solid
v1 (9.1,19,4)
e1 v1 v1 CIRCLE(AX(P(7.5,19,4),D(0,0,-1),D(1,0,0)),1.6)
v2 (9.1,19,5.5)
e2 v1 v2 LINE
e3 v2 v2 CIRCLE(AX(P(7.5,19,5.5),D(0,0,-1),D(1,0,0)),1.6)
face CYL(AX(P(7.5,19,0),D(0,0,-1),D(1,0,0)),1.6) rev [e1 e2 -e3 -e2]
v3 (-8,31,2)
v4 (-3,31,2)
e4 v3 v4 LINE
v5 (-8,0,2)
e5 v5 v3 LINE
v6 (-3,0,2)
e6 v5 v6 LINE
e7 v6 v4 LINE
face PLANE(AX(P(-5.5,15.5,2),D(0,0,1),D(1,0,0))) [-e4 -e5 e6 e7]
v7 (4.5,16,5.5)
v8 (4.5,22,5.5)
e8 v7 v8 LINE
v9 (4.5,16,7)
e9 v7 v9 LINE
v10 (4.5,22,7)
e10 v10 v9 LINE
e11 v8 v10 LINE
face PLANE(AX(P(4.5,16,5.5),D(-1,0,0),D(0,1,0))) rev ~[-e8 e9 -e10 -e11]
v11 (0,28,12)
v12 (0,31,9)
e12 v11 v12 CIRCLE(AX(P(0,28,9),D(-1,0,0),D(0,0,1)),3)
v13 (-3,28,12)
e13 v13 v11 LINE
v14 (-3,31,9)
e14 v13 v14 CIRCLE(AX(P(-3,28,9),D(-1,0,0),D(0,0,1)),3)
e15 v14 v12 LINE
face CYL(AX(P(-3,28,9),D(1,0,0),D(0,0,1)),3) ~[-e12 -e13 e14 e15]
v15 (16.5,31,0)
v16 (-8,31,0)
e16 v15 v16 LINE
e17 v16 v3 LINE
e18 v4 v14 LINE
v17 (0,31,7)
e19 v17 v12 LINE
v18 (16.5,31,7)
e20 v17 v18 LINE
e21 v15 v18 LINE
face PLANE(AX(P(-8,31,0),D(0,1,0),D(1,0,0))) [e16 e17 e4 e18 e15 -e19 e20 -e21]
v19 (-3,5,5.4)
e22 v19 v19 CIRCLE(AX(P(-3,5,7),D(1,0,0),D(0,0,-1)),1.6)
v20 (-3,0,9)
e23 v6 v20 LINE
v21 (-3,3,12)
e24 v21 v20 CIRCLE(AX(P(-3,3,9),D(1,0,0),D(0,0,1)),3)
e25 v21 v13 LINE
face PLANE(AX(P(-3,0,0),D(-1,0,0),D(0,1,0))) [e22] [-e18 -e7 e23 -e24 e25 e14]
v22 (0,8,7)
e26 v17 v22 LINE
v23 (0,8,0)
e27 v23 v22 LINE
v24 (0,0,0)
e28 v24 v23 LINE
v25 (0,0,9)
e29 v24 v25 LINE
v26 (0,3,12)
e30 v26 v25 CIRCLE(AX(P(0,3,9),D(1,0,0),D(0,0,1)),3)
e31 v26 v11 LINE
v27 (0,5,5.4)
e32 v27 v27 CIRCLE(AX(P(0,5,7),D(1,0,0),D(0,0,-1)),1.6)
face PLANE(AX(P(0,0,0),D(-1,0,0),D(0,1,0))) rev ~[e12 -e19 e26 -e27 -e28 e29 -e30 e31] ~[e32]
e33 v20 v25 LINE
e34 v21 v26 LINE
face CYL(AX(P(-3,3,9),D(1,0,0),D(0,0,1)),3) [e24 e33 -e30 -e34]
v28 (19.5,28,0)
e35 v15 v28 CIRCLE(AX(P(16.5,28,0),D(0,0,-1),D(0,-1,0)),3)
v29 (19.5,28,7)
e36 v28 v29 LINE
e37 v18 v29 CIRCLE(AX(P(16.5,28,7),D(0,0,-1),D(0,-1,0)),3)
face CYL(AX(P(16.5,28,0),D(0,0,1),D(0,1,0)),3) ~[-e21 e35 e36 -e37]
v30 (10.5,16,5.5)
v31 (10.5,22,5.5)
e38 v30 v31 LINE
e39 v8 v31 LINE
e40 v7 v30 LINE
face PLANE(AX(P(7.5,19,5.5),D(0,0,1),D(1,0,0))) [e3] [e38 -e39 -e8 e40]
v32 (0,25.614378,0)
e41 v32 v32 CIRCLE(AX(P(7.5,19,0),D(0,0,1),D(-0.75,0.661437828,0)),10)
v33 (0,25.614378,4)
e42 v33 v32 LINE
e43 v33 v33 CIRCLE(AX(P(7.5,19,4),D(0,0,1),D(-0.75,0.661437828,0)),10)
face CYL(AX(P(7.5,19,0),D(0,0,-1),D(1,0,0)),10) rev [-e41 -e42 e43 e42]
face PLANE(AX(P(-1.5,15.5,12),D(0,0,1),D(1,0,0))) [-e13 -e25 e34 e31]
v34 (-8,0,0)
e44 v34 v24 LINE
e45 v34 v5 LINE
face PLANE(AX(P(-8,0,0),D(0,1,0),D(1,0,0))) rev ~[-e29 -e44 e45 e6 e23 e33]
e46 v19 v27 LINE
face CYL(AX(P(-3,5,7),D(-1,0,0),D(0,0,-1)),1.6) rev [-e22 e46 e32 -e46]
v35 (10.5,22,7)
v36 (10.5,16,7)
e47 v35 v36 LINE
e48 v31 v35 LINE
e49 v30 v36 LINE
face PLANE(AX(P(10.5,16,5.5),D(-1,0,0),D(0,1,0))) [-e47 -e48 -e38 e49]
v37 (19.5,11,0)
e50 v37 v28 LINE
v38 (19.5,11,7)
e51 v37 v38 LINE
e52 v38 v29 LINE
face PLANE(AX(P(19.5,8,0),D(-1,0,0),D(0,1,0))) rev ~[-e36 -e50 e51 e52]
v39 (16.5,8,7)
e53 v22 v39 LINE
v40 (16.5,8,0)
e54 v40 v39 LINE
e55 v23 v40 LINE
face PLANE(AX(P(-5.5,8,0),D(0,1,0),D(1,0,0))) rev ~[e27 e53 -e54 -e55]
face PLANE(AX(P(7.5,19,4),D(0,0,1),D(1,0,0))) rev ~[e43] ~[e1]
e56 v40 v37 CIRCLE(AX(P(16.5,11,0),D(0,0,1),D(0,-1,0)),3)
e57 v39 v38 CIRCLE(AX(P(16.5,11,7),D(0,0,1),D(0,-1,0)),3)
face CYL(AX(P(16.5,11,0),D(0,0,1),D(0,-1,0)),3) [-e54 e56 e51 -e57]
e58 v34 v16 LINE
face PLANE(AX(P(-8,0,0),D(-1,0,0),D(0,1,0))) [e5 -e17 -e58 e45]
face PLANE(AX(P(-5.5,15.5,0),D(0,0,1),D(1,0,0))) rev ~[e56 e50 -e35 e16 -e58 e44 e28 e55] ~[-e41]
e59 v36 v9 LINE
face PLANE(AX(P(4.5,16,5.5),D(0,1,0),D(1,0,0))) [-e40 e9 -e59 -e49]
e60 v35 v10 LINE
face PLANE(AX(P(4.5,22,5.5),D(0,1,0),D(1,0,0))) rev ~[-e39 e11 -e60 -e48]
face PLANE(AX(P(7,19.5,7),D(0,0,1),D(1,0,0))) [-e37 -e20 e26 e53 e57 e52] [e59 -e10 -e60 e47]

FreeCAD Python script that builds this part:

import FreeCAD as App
import Part
import Sketcher

V = App.Vector
Q = App.Units.Quantity


def edges_at(feature, points):
    """Names of the edges that pass closest to the given points."""
    edges = feature.Shape.Edges
    near = lambda p: min(range(len(edges)), key=lambda i: edges[i].distToShape(Part.Vertex(*p))[0])
    return sorted({f"Edge{near(p) + 1}" for p in points})


def add_polygon(sketch, points):
    """Adds a closed chain of lines whose ends are joined by coincident constraints."""
    first, n = sketch.GeometryCount, len(points)
    for a, b in zip(points, points[1:] + points[:1]):
        sketch.addGeometry(Part.LineSegment(App.Vector(*a, 0), App.Vector(*b, 0)), False)
    for i in range(n):
        sketch.addConstraint(Sketcher.Constraint("Coincident", first + i, 2, first + (i + 1) % n, 1))

doc = App.newDocument("Part")
body = doc.addObject("PartDesign::Body", "Body")

# Sketch on XY plane
sketch1 = body.newObject("Sketcher::SketchObject", "Sketch")
sketch1.AttachmentSupport = (doc.getObject("XY_Plane"), [""])
sketch1.MapMode = "FlatFace"
sketch1.addGeometry(Part.Circle(V(8, 19, 0), V(0, 0, 1), 10), False)
sketch1.addConstraint(Sketcher.Constraint("Diameter", 0, Q("20 mm")))
sketch1.addConstraint(Sketcher.Constraint("DistanceY", -1, 1, 0, 3, Q("19 mm")))
sketch1.addConstraint(Sketcher.Constraint("DistanceX", -1, 1, 0, 3, Q("7.5 mm")))
pad1 = body.newObject("PartDesign::Pad", "Pad")
pad1.Profile = sketch1
pad1.Length = 4
body2 = doc.addObject("PartDesign::Body", "Body001")

# Sketch on YZ plane
sketch2 = body2.newObject("Sketcher::SketchObject", "Sketch001")
sketch2.AttachmentSupport = (doc.getObject("YZ_Plane001"), [""])
sketch2.MapMode = "FlatFace"
sketch2.AttachmentOffset = App.Placement(V(0, 0, -3), App.Rotation())
sketch2.addGeometry(Part.Circle(V(5, 7, 0), V(0, 0, 1), 1.6), False)
sketch2.addConstraint(Sketcher.Constraint("Diameter", 0, Q("3.2 mm")))
sketch2.addConstraint(Sketcher.Constraint("DistanceX", -1, 1, 0, 3, Q("5 mm")))
sketch2.addConstraint(Sketcher.Constraint("DistanceY", -1, 1, 0, 3, Q("7 mm")))
pad2 = body2.newObject("PartDesign::Pad", "Pad001")
pad2.Profile = sketch2
pad2.Length = 3
body3 = doc.addObject("PartDesign::Body", "Body002")

# Sketch on XY plane
sketch3 = body3.newObject("Sketcher::SketchObject", "Sketch002")
sketch3.AttachmentSupport = (doc.getObject("XY_Plane002"), [""])
sketch3.MapMode = "FlatFace"
add_polygon(sketch3, [(-8, 31), (-8, 0), (-3, 0), (-3, 31)])  # lines 0-3
sketch3.addConstraint(Sketcher.Constraint("Vertical", 0))
sketch3.addConstraint(Sketcher.Constraint("Horizontal", 1))
sketch3.addConstraint(Sketcher.Constraint("Vertical", 2))
sketch3.addConstraint(Sketcher.Constraint("Horizontal", 3))
sketch3.addConstraint(Sketcher.Constraint("PointOnObject", 0, 2, -1))
sketch3.addConstraint(Sketcher.Constraint("DistanceX", 1, 1, 1, 2, Q("5 mm")))
sketch3.addConstraint(Sketcher.Constraint("DistanceY", 0, 2, 0, 1, Q("31 mm")))
sketch3.addConstraint(Sketcher.Constraint("DistanceX", 0, 2, -1, 1, Q("8 mm")))
pad3 = body3.newObject("PartDesign::Pad", "Pad002")
pad3.Profile = sketch3
pad3.Length = 2
body4 = doc.addObject("PartDesign::Body", "Body003")

# Sketch on XY plane
sketch4 = body4.newObject("Sketcher::SketchObject", "Sketch003")
sketch4.AttachmentSupport = (doc.getObject("XY_Plane003"), [""])
sketch4.MapMode = "FlatFace"
add_polygon(sketch4, [(-3, 31), (-3, 0), (0, 0), (0, 31)])  # lines 0-3
sketch4.addConstraint(Sketcher.Constraint("Vertical", 0))
sketch4.addConstraint(Sketcher.Constraint("Horizontal", 1))
sketch4.addConstraint(Sketcher.Constraint("Vertical", 2))
sketch4.addConstraint(Sketcher.Constraint("Horizontal", 3))
sketch4.addConstraint(Sketcher.Constraint("Coincident", 1, 2, -1, 1))
sketch4.addConstraint(Sketcher.Constraint("DistanceX", 1, 1, 1, 2, Q("3 mm")))
sketch4.addConstraint(Sketcher.Constraint("DistanceY", 0, 2, 0, 1, Q("31 mm")))
pad4 = body4.newObject("PartDesign::Pad", "Pad003")
pad4.Profile = sketch4
pad4.Length = 12
doc.recompute()

boolean = body4.newObject("PartDesign::Boolean", "Boolean")
boolean.Type = "Fuse"
boolean.addObjects([body3])
doc.recompute()

boolean2 = body4.newObject("PartDesign::Boolean", "Boolean001")
boolean2.Type = "Cut"
boolean2.addObjects([body2])
body5 = doc.addObject("PartDesign::Body", "Body004")

# Sketch on XY plane
sketch5 = body5.newObject("Sketcher::SketchObject", "Sketch004")
sketch5.AttachmentSupport = (doc.getObject("XY_Plane004"), [""])
sketch5.MapMode = "FlatFace"
sketch5.AttachmentOffset = App.Placement(V(0, 0, 2), App.Rotation())
add_polygon(sketch5, [(-6, 31), (-6, 0), (-3, 0), (-3, 31)])  # lines 0-3
sketch5.addConstraint(Sketcher.Constraint("Vertical", 0))
sketch5.addConstraint(Sketcher.Constraint("Horizontal", 1))
sketch5.addConstraint(Sketcher.Constraint("Vertical", 2))
sketch5.addConstraint(Sketcher.Constraint("Horizontal", 3))
sketch5.addConstraint(Sketcher.Constraint("PointOnObject", 0, 2, -1))
sketch5.addConstraint(Sketcher.Constraint("DistanceX", 1, 1, 1, 2, Q("3 mm")))
sketch5.addConstraint(Sketcher.Constraint("DistanceY", 0, 2, 0, 1, Q("31 mm")))
sketch5.addConstraint(Sketcher.Constraint("DistanceX", 0, 2, -1, 1, Q("6 mm")))
pad5 = body5.newObject("PartDesign::Pad", "Pad004")
pad5.Profile = sketch5
pad5.Length = 5
body6 = doc.addObject("PartDesign::Body", "Body005")

# Sketch on XY plane
sketch6 = body6.newObject("Sketcher::SketchObject", "Sketch005")
sketch6.AttachmentSupport = (doc.getObject("XY_Plane005"), [""])
sketch6.MapMode = "FlatFace"
sketch6.addGeometry(Part.Circle(V(13, 19, 0), V(0, 0, 1), 1.6), False)
sketch6.addConstraint(Sketcher.Constraint("Diameter", 0, Q("3.2 mm")))
sketch6.addConstraint(Sketcher.Constraint("DistanceX", -1, 1, 0, 3, Q("13 mm")))
sketch6.addConstraint(Sketcher.Constraint("DistanceY", -1, 1, 0, 3, Q("19 mm")))
pad6 = body6.newObject("PartDesign::Pad", "Pad005")
pad6.Profile = sketch6
pad6.Length = 10
body7 = doc.addObject("PartDesign::Body", "Body006")

# Sketch on XY plane
sketch7 = body7.newObject("Sketcher::SketchObject", "Sketch006")
sketch7.AttachmentSupport = (doc.getObject("XY_Plane006"), [""])
sketch7.MapMode = "FlatFace"
sketch7.AttachmentOffset = App.Placement(V(0, 0, 5.5), App.Rotation())
add_polygon(sketch7, [(10, 22), (10, 16), (16, 16), (16, 22)])  # lines 0-3
sketch7.addConstraint(Sketcher.Constraint("Vertical", 0))
sketch7.addConstraint(Sketcher.Constraint("Horizontal", 1))
sketch7.addConstraint(Sketcher.Constraint("Vertical", 2))
sketch7.addConstraint(Sketcher.Constraint("Horizontal", 3))
sketch7.addConstraint(Sketcher.Constraint("Equal", 3, 0))
sketch7.addConstraint(Sketcher.Constraint("DistanceX", 1, 1, 1, 2, Q("6 mm")))
sketch7.addConstraint(Sketcher.Constraint("DistanceX", -1, 1, 0, 2, Q("10 mm")))
sketch7.addConstraint(Sketcher.Constraint("DistanceY", -1, 1, 0, 2, Q("16 mm")))
pad7 = body7.newObject("PartDesign::Pad", "Pad006")
pad7.Profile = sketch7
pad7.Length = 2
body8 = doc.addObject("PartDesign::Body", "Body007")

# Sketch on XY plane
sketch8 = body8.newObject("Sketcher::SketchObject", "Sketch007")
sketch8.AttachmentSupport = (doc.getObject("XY_Plane007"), [""])
sketch8.MapMode = "FlatFace"
sketch8.addGeometry(Part.Circle(V(13, 19, 0), V(0, 0, 1), 10), False)
sketch8.addConstraint(Sketcher.Constraint("Diameter", 0, Q("20 mm")))
sketch8.addConstraint(Sketcher.Constraint("DistanceX", -1, 1, 0, 3, Q("13 mm")))
sketch8.addConstraint(Sketcher.Constraint("DistanceY", -1, 1, 0, 3, Q("19 mm")))
pad8 = body8.newObject("PartDesign::Pad", "Pad007")
pad8.Profile = sketch8
pad8.Length = 4
body9 = doc.addObject("PartDesign::Body", "Body008")

# Sketch on XY plane
sketch9 = body9.newObject("Sketcher::SketchObject", "Sketch008")
sketch9.AttachmentSupport = (doc.getObject("XY_Plane008"), [""])
sketch9.MapMode = "FlatFace"
add_polygon(sketch9, [(0, 31), (0, 8), (25, 8), (25, 31)])  # lines 0-3
sketch9.addConstraint(Sketcher.Constraint("Vertical", 0))
sketch9.addConstraint(Sketcher.Constraint("Horizontal", 1))
sketch9.addConstraint(Sketcher.Constraint("Vertical", 2))
sketch9.addConstraint(Sketcher.Constraint("Horizontal", 3))
sketch9.addConstraint(Sketcher.Constraint("PointOnObject", 0, 2, -2))
sketch9.addConstraint(Sketcher.Constraint("DistanceX", 1, 1, 1, 2, Q("25 mm")))
sketch9.addConstraint(Sketcher.Constraint("DistanceY", 0, 2, 0, 1, Q("23 mm")))
sketch9.addConstraint(Sketcher.Constraint("DistanceY", -1, 1, 0, 2, Q("8 mm")))
pad9 = body9.newObject("PartDesign::Pad", "Pad008")
pad9.Profile = sketch9
pad9.Length = 7
doc.recompute()

boolean3 = body9.newObject("PartDesign::Boolean", "Boolean002")
boolean3.Type = "Cut"
boolean3.addObjects([body8])
doc.recompute()

boolean4 = body9.newObject("PartDesign::Boolean", "Boolean003")
boolean4.Type = "Cut"
boolean4.addObjects([body7])
doc.recompute()

boolean5 = body9.newObject("PartDesign::Boolean", "Boolean004")
boolean5.Type = "Cut"
boolean5.addObjects([body6])
body10 = doc.addObject("PartDesign::Body", "Body009")
doc.recompute()

body9.Placement = App.Placement(V(-3, 0, 0), App.Rotation(V(0, 0, 1), 0))
boolean6 = body10.newObject("PartDesign::Boolean", "Boolean005")
boolean6.Type = "Fuse"
boolean6.addObjects([body9])
doc.recompute()

fillet = body10.newObject("PartDesign::Fillet", "Fillet")
fillet.Base = (boolean6, edges_at(boolean6, [(22, 8, 3.5), (22, 31, 3.5)]))
fillet.Radius = 3
body11 = doc.addObject("PartDesign::Body", "Body010")
doc.recompute()

body10.Placement = App.Placement(V(-2.5, 0, 0), App.Rotation(V(0, 0, 1), 0))
boolean7 = body11.newObject("PartDesign::Boolean", "Boolean006")
boolean7.Type = "Fuse"
boolean7.addObjects([body10])
doc.recompute()

boolean8 = body11.newObject("PartDesign::Boolean", "Boolean007")
boolean8.Type = "Cut"
boolean8.addObjects([body5])
doc.recompute()

boolean9 = body11.newObject("PartDesign::Boolean", "Boolean008")
boolean9.Type = "Fuse"
boolean9.addObjects([body4])
doc.recompute()

boolean10 = body11.newObject("PartDesign::Boolean", "Boolean009")
boolean10.Type = "Cut"
boolean10.addObjects([body])
doc.recompute()

fillet2 = body11.newObject("PartDesign::Fillet", "Fillet001")
fillet2.Base = (boolean10, edges_at(boolean10, [(-1.5, 31, 12), (-1.5, 0, 12)]))
fillet2.Radius = 3

doc.recompute()
